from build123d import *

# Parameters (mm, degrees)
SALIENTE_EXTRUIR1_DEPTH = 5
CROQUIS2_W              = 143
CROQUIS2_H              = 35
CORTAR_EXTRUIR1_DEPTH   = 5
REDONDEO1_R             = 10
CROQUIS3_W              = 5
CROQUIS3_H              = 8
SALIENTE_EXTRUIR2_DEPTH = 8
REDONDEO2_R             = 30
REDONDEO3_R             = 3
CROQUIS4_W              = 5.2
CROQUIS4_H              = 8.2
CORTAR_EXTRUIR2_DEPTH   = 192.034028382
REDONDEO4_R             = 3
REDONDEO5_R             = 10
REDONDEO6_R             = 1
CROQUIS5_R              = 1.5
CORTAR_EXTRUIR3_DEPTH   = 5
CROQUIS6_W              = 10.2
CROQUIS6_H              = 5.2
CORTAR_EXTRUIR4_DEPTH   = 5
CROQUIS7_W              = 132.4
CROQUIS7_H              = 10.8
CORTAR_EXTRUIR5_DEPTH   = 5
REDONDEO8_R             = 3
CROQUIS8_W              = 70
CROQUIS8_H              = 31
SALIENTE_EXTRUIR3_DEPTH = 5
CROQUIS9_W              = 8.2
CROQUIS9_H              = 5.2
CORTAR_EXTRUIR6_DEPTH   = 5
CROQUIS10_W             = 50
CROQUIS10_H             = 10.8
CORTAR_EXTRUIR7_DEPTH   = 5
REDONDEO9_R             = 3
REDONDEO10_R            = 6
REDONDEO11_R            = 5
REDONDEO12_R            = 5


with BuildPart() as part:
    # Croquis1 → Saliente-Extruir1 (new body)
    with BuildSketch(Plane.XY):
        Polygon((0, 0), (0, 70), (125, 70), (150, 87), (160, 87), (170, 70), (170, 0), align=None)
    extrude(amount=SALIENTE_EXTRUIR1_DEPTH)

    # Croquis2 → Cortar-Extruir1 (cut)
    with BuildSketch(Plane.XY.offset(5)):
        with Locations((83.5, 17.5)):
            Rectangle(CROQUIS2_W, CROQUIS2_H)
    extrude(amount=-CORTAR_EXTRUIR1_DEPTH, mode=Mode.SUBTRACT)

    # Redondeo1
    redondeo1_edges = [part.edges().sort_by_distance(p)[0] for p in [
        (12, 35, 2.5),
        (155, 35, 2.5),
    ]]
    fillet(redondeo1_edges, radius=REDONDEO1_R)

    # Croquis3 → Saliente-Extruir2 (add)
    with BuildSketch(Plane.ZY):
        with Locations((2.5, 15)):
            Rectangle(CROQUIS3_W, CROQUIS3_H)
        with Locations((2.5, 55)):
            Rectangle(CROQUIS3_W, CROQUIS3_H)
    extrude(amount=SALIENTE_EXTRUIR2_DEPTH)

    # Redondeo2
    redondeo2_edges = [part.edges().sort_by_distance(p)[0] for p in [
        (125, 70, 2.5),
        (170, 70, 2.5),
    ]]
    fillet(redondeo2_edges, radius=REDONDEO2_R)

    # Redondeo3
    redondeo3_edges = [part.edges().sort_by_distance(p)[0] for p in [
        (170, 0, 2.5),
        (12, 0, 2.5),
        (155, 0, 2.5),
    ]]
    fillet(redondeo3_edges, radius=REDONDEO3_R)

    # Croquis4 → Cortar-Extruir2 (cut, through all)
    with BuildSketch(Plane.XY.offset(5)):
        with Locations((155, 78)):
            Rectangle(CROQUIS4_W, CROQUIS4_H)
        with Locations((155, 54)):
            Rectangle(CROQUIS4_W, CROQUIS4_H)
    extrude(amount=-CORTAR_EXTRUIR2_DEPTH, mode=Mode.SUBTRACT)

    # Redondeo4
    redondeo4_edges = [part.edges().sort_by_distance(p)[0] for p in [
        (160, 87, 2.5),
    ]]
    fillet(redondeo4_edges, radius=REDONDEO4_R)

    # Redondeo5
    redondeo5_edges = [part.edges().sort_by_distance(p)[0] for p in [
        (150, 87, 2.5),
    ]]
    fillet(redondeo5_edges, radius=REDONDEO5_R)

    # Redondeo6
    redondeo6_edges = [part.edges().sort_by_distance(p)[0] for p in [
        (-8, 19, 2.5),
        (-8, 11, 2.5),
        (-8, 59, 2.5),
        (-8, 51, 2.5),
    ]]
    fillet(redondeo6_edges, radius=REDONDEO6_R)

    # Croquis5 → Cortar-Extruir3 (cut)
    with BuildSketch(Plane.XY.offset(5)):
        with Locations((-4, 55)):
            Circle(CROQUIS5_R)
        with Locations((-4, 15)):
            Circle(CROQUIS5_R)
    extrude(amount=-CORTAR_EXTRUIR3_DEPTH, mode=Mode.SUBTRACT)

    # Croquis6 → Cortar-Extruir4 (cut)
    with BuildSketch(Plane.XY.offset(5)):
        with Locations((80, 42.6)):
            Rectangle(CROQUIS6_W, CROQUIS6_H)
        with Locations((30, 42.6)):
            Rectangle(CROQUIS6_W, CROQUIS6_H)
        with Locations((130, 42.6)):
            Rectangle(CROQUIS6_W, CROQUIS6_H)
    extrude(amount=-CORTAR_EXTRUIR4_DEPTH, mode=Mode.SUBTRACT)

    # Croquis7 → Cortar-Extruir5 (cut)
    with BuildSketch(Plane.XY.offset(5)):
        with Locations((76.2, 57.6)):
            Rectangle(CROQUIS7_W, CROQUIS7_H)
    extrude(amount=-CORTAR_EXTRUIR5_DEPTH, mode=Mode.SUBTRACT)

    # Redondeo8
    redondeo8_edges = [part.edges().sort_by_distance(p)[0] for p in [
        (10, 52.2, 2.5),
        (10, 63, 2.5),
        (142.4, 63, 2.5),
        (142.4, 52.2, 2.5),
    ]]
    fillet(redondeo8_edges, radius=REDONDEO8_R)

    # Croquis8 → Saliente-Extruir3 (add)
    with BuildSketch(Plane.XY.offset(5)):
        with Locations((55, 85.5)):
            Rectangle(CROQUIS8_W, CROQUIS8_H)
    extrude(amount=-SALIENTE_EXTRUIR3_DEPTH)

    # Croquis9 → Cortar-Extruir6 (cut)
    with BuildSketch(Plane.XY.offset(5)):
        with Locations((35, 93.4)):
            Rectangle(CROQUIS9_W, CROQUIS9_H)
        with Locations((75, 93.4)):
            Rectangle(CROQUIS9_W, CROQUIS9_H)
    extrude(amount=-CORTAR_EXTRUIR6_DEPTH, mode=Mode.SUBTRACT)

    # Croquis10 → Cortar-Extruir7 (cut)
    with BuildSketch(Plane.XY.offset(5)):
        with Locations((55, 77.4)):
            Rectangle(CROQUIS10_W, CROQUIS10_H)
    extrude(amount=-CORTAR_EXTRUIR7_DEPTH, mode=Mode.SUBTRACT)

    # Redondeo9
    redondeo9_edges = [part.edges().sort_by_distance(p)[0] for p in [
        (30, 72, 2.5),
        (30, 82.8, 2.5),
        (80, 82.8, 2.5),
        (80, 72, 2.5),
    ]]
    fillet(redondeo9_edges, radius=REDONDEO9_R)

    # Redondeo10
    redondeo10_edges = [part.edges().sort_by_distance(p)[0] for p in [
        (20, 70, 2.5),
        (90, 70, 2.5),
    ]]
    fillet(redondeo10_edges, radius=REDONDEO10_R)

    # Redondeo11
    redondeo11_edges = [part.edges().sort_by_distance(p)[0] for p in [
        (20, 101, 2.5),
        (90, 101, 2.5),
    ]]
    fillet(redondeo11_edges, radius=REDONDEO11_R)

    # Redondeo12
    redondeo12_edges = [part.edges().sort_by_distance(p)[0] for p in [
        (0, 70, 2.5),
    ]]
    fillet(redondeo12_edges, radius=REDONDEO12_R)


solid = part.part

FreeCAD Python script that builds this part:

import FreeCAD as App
import Part
import Sketcher
Q = App.Units.Quantity


def edges_at(feature, points):
    """Names of the edges that pass closest to the given points."""
    edges = feature.Shape.Edges
    near = lambda p: min(range(len(edges)), key=lambda i: edges[i].distToShape(Part.Vertex(*p))[0])
    return sorted({f"Edge{near(p) + 1}" for p in points})

doc = App.newDocument("Part")
body = doc.addObject("PartDesign::Body", "Body")

# Sketch on XY plane
sketch1 = doc.addObject("Sketcher::SketchObject", "Sketch")
body.addObject(sketch1)
sketch1.AttachmentSupport = (doc.XY_Plane, [""])
sketch1.MapMode = "FlatFace"
sketch1.addGeometry(Part.LineSegment(App.Vector(0, 70, 0), App.Vector(0, 0, 0)), False)
sketch1.addGeometry(Part.LineSegment(App.Vector(0, 0, 0), App.Vector(170, 0, 0)), False)
sketch1.addGeometry(Part.LineSegment(App.Vector(170, 0, 0), App.Vector(170, 70, 0)), False)
sketch1.addGeometry(Part.LineSegment(App.Vector(170, 70, 0), App.Vector(160, 87, 0)), False)
sketch1.addGeometry(Part.LineSegment(App.Vector(160, 87, 0), App.Vector(150, 87, 0)), False)
sketch1.addGeometry(Part.LineSegment(App.Vector(150, 87, 0), App.Vector(125, 70, 0)), False)
sketch1.addGeometry(Part.LineSegment(App.Vector(125, 70, 0), App.Vector(0, 70, 0)), False)
sketch1.addConstraint(Sketcher.Constraint("Coincident", 0, 2, 1, 1))
sketch1.addConstraint(Sketcher.Constraint("Coincident", 1, 2, 2, 1))
sketch1.addConstraint(Sketcher.Constraint("Coincident", 2, 2, 3, 1))
sketch1.addConstraint(Sketcher.Constraint("Coincident", 3, 2, 4, 1))
sketch1.addConstraint(Sketcher.Constraint("Coincident", 4, 2, 5, 1))
sketch1.addConstraint(Sketcher.Constraint("Coincident", 5, 2, 6, 1))
sketch1.addConstraint(Sketcher.Constraint("Coincident", 6, 2, 0, 1))
sketch1.addConstraint(Sketcher.Constraint("Vertical", 0))
sketch1.addConstraint(Sketcher.Constraint("Horizontal", 1))
sketch1.addConstraint(Sketcher.Constraint("Vertical", 2))
sketch1.addConstraint(Sketcher.Constraint("Horizontal", 4))
sketch1.addConstraint(Sketcher.Constraint("Horizontal", 6))
sketch1.addConstraint(Sketcher.Constraint("Coincident", 0, 2, -1, 1))
sketch1.addConstraint(Sketcher.Constraint("Horizontal", 2, 2, 5, 2))
sketch1.addConstraint(Sketcher.Constraint("DistanceX", 1, 1, 1, 2, Q("170 mm")))
sketch1.addConstraint(Sketcher.Constraint("DistanceX", 4, 2, 4, 1, Q("10 mm")))
sketch1.addConstraint(Sketcher.Constraint("DistanceX", 6, 2, 6, 1, Q("125 mm")))
sketch1.addConstraint(Sketcher.Constraint("DistanceY", 0, 2, 0, 1, Q("70 mm")))
sketch1.addConstraint(Sketcher.Constraint("DistanceX", -1, 1, 3, 2, Q("160 mm")))
sketch1.addConstraint(Sketcher.Constraint("DistanceY", -1, 1, 3, 2, Q("87 mm")))
pad1 = doc.addObject("PartDesign::Pad", "Pad")
body.addObject(pad1)
pad1.Profile = sketch1
pad1.Length = 5

# Sketch on XY plane
sketch2 = doc.addObject("Sketcher::SketchObject", "Sketch001")
body.addObject(sketch2)
sketch2.AttachmentSupport = (doc.XY_Plane, [""])
sketch2.MapMode = "FlatFace"
sketch2.AttachmentOffset = App.Placement(App.Vector(0, 0, 5), App.Rotation())
sketch2.addGeometry(Part.LineSegment(App.Vector(12, 35, 0), App.Vector(12, 0, 0)), False)
sketch2.addGeometry(Part.LineSegment(App.Vector(12, 0, 0), App.Vector(155, 0, 0)), False)
sketch2.addGeometry(Part.LineSegment(App.Vector(155, 0, 0), App.Vector(155, 35, 0)), False)
sketch2.addGeometry(Part.LineSegment(App.Vector(155, 35, 0), App.Vector(12, 35, 0)), False)
sketch2.addConstraint(Sketcher.Constraint("Coincident", 0, 2, 1, 1))
sketch2.addConstraint(Sketcher.Constraint("Coincident", 1, 2, 2, 1))
sketch2.addConstraint(Sketcher.Constraint("Coincident", 2, 2, 3, 1))
sketch2.addConstraint(Sketcher.Constraint("Coincident", 3, 2, 0, 1))
sketch2.addConstraint(Sketcher.Constraint("Vertical", 0))
sketch2.addConstraint(Sketcher.Constraint("Horizontal", 1))
sketch2.addConstraint(Sketcher.Constraint("Vertical", 2))
sketch2.addConstraint(Sketcher.Constraint("Horizontal", 3))
sketch2.addConstraint(Sketcher.Constraint("PointOnObject", 0, 2, -1))
sketch2.addConstraint(Sketcher.Constraint("DistanceX", 1, 1, 1, 2, Q("143 mm")))
sketch2.addConstraint(Sketcher.Constraint("DistanceY", 0, 2, 0, 1, Q("35 mm")))
sketch2.addConstraint(Sketcher.Constraint("DistanceX", -1, 1, 0, 2, Q("12 mm")))
pocket1 = doc.addObject("PartDesign::Pocket", "Pocket")
body.addObject(pocket1)
pocket1.Profile = sketch2
pocket1.Length = 5
doc.recompute()

fillet = doc.addObject("PartDesign::Fillet", "Fillet")
body.addObject(fillet)
fillet.Base = (pocket1, edges_at(pocket1, [(12, 35, 2.5), (155, 35, 2.5)]))
fillet.Radius = 10

# Sketch on YZ plane
sketch3 = doc.addObject("Sketcher::SketchObject", "Sketch002")
body.addObject(sketch3)
sketch3.AttachmentSupport = (doc.YZ_Plane, [""])
sketch3.MapMode = "FlatFace"
sketch3.addGeometry(Part.LineSegment(App.Vector(19, 0, 0), App.Vector(11, 0, 0)), False)
sketch3.addGeometry(Part.LineSegment(App.Vector(11, 0, 0), App.Vector(11, 5, 0)), False)
sketch3.addGeometry(Part.LineSegment(App.Vector(11, 5, 0), App.Vector(19, 5, 0)), False)
sketch3.addGeometry(Part.LineSegment(App.Vector(19, 5, 0), App.Vector(19, 0, 0)), False)
sketch3.addGeometry(Part.LineSegment(App.Vector(59, 0, 0), App.Vector(51, 0, 0)), False)
sketch3.addGeometry(Part.LineSegment(App.Vector(51, 0, 0), App.Vector(51, 5, 0)), False)
sketch3.addGeometry(Part.LineSegment(App.Vector(51, 5, 0), App.Vector(59, 5, 0)), False)
sketch3.addGeometry(Part.LineSegment(App.Vector(59, 5, 0), App.Vector(59, 0, 0)), False)
sketch3.addConstraint(Sketcher.Constraint("Coincident", 0, 2, 1, 1))
sketch3.addConstraint(Sketcher.Constraint("Coincident", 1, 2, 2, 1))
sketch3.addConstraint(Sketcher.Constraint("Coincident", 2, 2, 3, 1))
sketch3.addConstraint(Sketcher.Constraint("Coincident", 3, 2, 0, 1))
sketch3.addConstraint(Sketcher.Constraint("Coincident", 4, 2, 5, 1))
sketch3.addConstraint(Sketcher.Constraint("Coincident", 5, 2, 6, 1))
sketch3.addConstraint(Sketcher.Constraint("Coincident", 6, 2, 7, 1))
sketch3.addConstraint(Sketcher.Constraint("Coincident", 7, 2, 4, 1))
sketch3.addConstraint(Sketcher.Constraint("Horizontal", 0))
sketch3.addConstraint(Sketcher.Constraint("Vertical", 1))
sketch3.addConstraint(Sketcher.Constraint("Horizontal", 2))
sketch3.addConstraint(Sketcher.Constraint("Vertical", 3))
sketch3.addConstraint(Sketcher.Constraint("Horizontal", 4))
sketch3.addConstraint(Sketcher.Constraint("Vertical", 5))
sketch3.addConstraint(Sketcher.Constraint("Horizontal", 6))
sketch3.addConstraint(Sketcher.Constraint("Vertical", 7))
sketch3.addConstraint(Sketcher.Constraint("PointOnObject", 0, 2, -1))
sketch3.addConstraint(Sketcher.Constraint("PointOnObject", 4, 2, -1))
sketch3.addConstraint(Sketcher.Constraint("Horizontal", 2, 2, 5, 2))
sketch3.addConstraint(Sketcher.Constraint("Equal", 2, 4))
sketch3.addConstraint(Sketcher.Constraint("DistanceX", 0, 2, 0, 1, Q("8 mm")))
sketch3.addConstraint(Sketcher.Constraint("DistanceY", 1, 1, 1, 2, Q("5 mm")))
sketch3.addConstraint(Sketcher.Constraint("DistanceX", -1, 1, 0, 2, Q("11 mm")))
sketch3.addConstraint(Sketcher.Constraint("DistanceX", -1, 1, 4, 2, Q("51 mm")))
pad2 = doc.addObject("PartDesign::Pad", "Pad001")
body.addObject(pad2)
pad2.Profile = sketch3
pad2.Length = 8
pad2.Reversed = True
doc.recompute()

fillet2 = doc.addObject("PartDesign::Fillet", "Fillet001")
body.addObject(fillet2)
fillet2.Base = (pad2, edges_at(pad2, [(125, 70, 2.5), (170, 70, 2.5)]))
fillet2.Radius = 30
doc.recompute()

fillet3 = doc.addObject("PartDesign::Fillet", "Fillet002")
body.addObject(fillet3)
fillet3.Base = (fillet2, edges_at(fillet2, [(170, 0, 2.5), (12, 0, 2.5), (155, 0, 2.5)]))
fillet3.Radius = 3

# Sketch on XY plane
sketch4 = doc.addObject("Sketcher::SketchObject", "Sketch003")
body.addObject(sketch4)
sketch4.AttachmentSupport = (doc.XY_Plane, [""])
sketch4.MapMode = "FlatFace"
sketch4.AttachmentOffset = App.Placement(App.Vector(0, 0, 5), App.Rotation())
sketch4.addGeometry(Part.LineSegment(App.Vector(152, 82, 0), App.Vector(152, 74, 0)), False)
sketch4.addGeometry(Part.LineSegment(App.Vector(152, 74, 0), App.Vector(158, 74, 0)), False)
sketch4.addGeometry(Part.LineSegment(App.Vector(158, 74, 0), App.Vector(158, 82, 0)), False)
sketch4.addGeometry(Part.LineSegment(App.Vector(158, 82, 0), App.Vector(152, 82, 0)), False)
sketch4.addGeometry(Part.LineSegment(App.Vector(152, 58, 0), App.Vector(152, 50, 0)), False)
sketch4.addGeometry(Part.LineSegment(App.Vector(152, 50, 0), App.Vector(158, 50, 0)), False)
sketch4.addGeometry(Part.LineSegment(App.Vector(158, 50, 0), App.Vector(158, 58, 0)), False)
sketch4.addGeometry(Part.LineSegment(App.Vector(158, 58, 0), App.Vector(152, 58, 0)), False)
sketch4.addConstraint(Sketcher.Constraint("Coincident", 0, 2, 1, 1))
sketch4.addConstraint(Sketcher.Constraint("Coincident", 1, 2, 2, 1))
sketch4.addConstraint(Sketcher.Constraint("Coincident", 2, 2, 3, 1))
sketch4.addConstraint(Sketcher.Constraint("Coincident", 3, 2, 0, 1))
sketch4.addConstraint(Sketcher.Constraint("Coincident", 4, 2, 5, 1))
sketch4.addConstraint(Sketcher.Constraint("Coincident", 5, 2, 6, 1))
sketch4.addConstraint(Sketcher.Constraint("Coincident", 6, 2, 7, 1))
sketch4.addConstraint(Sketcher.Constraint("Coincident", 7, 2, 4, 1))
sketch4.addConstraint(Sketcher.Constraint("Vertical", 0))
sketch4.addConstraint(Sketcher.Constraint("Horizontal", 1))
sketch4.addConstraint(Sketcher.Constraint("Vertical", 2))
sketch4.addConstraint(Sketcher.Constraint("Horizontal", 3))
sketch4.addConstraint(Sketcher.Constraint("Vertical", 4))
sketch4.addConstraint(Sketcher.Constraint("Horizontal", 5))
sketch4.addConstraint(Sketcher.Constraint("Vertical", 6))
sketch4.addConstraint(Sketcher.Constraint("Horizontal", 7))
sketch4.addConstraint(Sketcher.Constraint("Vertical", 3, 2, 4, 2))
sketch4.addConstraint(Sketcher.Constraint("Vertical", 2, 2, 5, 2))
sketch4.addConstraint(Sketcher.Constraint("Equal", 2, 4))
sketch4.addConstraint(Sketcher.Constraint("DistanceX", 1, 1, 1, 2, Q("5.2 mm")))
sketch4.addConstraint(Sketcher.Constraint("DistanceY", 0, 2, 0, 1, Q("8.2 mm")))
sketch4.addConstraint(Sketcher.Constraint("DistanceY", 4, 2, 0, 2, Q("24 mm")))
sketch4.addConstraint(Sketcher.Constraint("DistanceX", -1, 1, 0, 2, Q("152.4 mm")))
sketch4.addConstraint(Sketcher.Constraint("DistanceY", -1, 1, 0, 2, Q("73.9 mm")))
pocket2 = doc.addObject("PartDesign::Pocket", "Pocket001")
body.addObject(pocket2)
pocket2.Profile = sketch4
pocket2.Type = "ThroughAll"
doc.recompute()

fillet4 = doc.addObject("PartDesign::Fillet", "Fillet003")
body.addObject(fillet4)
fillet4.Base = (pocket2, edges_at(pocket2, [(160, 87, 2.5)]))
fillet4.Radius = 3
doc.recompute()

fillet5 = doc.addObject("PartDesign::Fillet", "Fillet004")
body.addObject(fillet5)
fillet5.Base = (fillet4, edges_at(fillet4, [(150, 87, 2.5)]))
fillet5.Radius = 10
doc.recompute()

fillet6 = doc.addObject("PartDesign::Fillet", "Fillet005")
body.addObject(fillet6)
fillet6.Base = (fillet5, edges_at(fillet5, [
    (-8, 19, 2.5),
    (-8, 11, 2.5),
    (-8, 59, 2.5),
    (-8, 51, 2.5),
]))
fillet6.Radius = 1

# Sketch on XY plane
sketch5 = doc.addObject("Sketcher::SketchObject", "Sketch004")
body.addObject(sketch5)
sketch5.AttachmentSupport = (doc.XY_Plane, [""])
sketch5.MapMode = "FlatFace"
sketch5.AttachmentOffset = App.Placement(App.Vector(0, 0, 5), App.Rotation())
sketch5.addGeometry(Part.Circle(App.Vector(-4, 55, 0), App.Vector(0, 0, 1), 1.5), False)
sketch5.addGeometry(Part.Circle(App.Vector(-4, 15, 0), App.Vector(0, 0, 1), 1.5), False)
sketch5.addConstraint(Sketcher.Constraint("Equal", 0, 1))
sketch5.addConstraint(Sketcher.Constraint("Vertical", 0, 3, 1, 3))
sketch5.addConstraint(Sketcher.Constraint("Diameter", 0, Q("3 mm")))
sketch5.addConstraint(Sketcher.Constraint("DistanceX", 0, 3, -1, 1, Q("4 mm")))
sketch5.addConstraint(Sketcher.Constraint("DistanceY", -1, 1, 0, 3, Q("55 mm")))
sketch5.addConstraint(Sketcher.Constraint("DistanceY", -1, 1, 1, 3, Q("15 mm")))
pocket3 = doc.addObject("PartDesign::Pocket", "Pocket002")
body.addObject(pocket3)
pocket3.Profile = sketch5
pocket3.Length = 5

# Sketch on XY plane
sketch6 = doc.addObject("Sketcher::SketchObject", "Sketch005")
body.addObject(sketch6)
sketch6.AttachmentSupport = (doc.XY_Plane, [""])
sketch6.MapMode = "FlatFace"
sketch6.AttachmentOffset = App.Placement(App.Vector(0, 0, 5), App.Rotation())
sketch6.addGeometry(Part.LineSegment(App.Vector(75, 45, 0), App.Vector(75, 40, 0)), False)
sketch6.addGeometry(Part.LineSegment(App.Vector(75, 40, 0), App.Vector(85, 40, 0)), False)
sketch6.addGeometry(Part.LineSegment(App.Vector(85, 40, 0), App.Vector(85, 45, 0)), False)
sketch6.addGeometry(Part.LineSegment(App.Vector(85, 45, 0), App.Vector(75, 45, 0)), False)
sketch6.addGeometry(Part.LineSegment(App.Vector(25, 45, 0), App.Vector(25, 40, 0)), False)
sketch6.addGeometry(Part.LineSegment(App.Vector(25, 40, 0), App.Vector(35, 40, 0)), False)
sketch6.addGeometry(Part.LineSegment(App.Vector(35, 40, 0), App.Vector(35, 45, 0)), False)
sketch6.addGeometry(Part.LineSegment(App.Vector(35, 45, 0), App.Vector(25, 45, 0)), False)
sketch6.addGeometry(Part.LineSegment(App.Vector(125, 45, 0), App.Vector(125, 40, 0)), False)
sketch6.addGeometry(Part.LineSegment(App.Vector(125, 40, 0), App.Vector(135, 40, 0)), False)
sketch6.addGeometry(Part.LineSegment(App.Vector(135, 40, 0), App.Vector(135, 45, 0)), False)
sketch6.addGeometry(Part.LineSegment(App.Vector(135, 45, 0), App.Vector(125, 45, 0)), False)
sketch6.addConstraint(Sketcher.Constraint("Coincident", 0, 2, 1, 1))
sketch6.addConstraint(Sketcher.Constraint("Coincident", 1, 2, 2, 1))
sketch6.addConstraint(Sketcher.Constraint("Coincident", 2, 2, 3, 1))
sketch6.addConstraint(Sketcher.Constraint("Coincident", 3, 2, 0, 1))
sketch6.addConstraint(Sketcher.Constraint("Coincident", 4, 2, 5, 1))
sketch6.addConstraint(Sketcher.Constraint("Coincident", 5, 2, 6, 1))
sketch6.addConstraint(Sketcher.Constraint("Coincident", 6, 2, 7, 1))
sketch6.addConstraint(Sketcher.Constraint("Coincident", 7, 2, 4, 1))
sketch6.addConstraint(Sketcher.Constraint("Coincident", 8, 2, 9, 1))
sketch6.addConstraint(Sketcher.Constraint("Coincident", 9, 2, 10, 1))
sketch6.addConstraint(Sketcher.Constraint("Coincident", 10, 2, 11, 1))
sketch6.addConstraint(Sketcher.Constraint("Coincident", 11, 2, 8, 1))
sketch6.addConstraint(Sketcher.Constraint("Vertical", 0))
sketch6.addConstraint(Sketcher.Constraint("Horizontal", 1))
sketch6.addConstraint(Sketcher.Constraint("Vertical", 2))
sketch6.addConstraint(Sketcher.Constraint("Horizontal", 3))
sketch6.addConstraint(Sketcher.Constraint("Vertical", 4))
sketch6.addConstraint(Sketcher.Constraint("Horizontal", 5))
sketch6.addConstraint(Sketcher.Constraint("Vertical", 6))
sketch6.addConstraint(Sketcher.Constraint("Horizontal", 7))
sketch6.addConstraint(Sketcher.Constraint("Vertical", 8))
sketch6.addConstraint(Sketcher.Constraint("Horizontal", 9))
sketch6.addConstraint(Sketcher.Constraint("Vertical", 10))
sketch6.addConstraint(Sketcher.Constraint("Horizontal", 11))
sketch6.addConstraint(Sketcher.Constraint("Horizontal", 1, 2, 4, 2))
sketch6.addConstraint(Sketcher.Constraint("Horizontal", 3, 2, 6, 2))
sketch6.addConstraint(Sketcher.Constraint("Horizontal", 5, 2, 8, 2))
sketch6.addConstraint(Sketcher.Constraint("Horizontal", 7, 2, 10, 2))
sketch6.addConstraint(Sketcher.Constraint("Equal", 3, 5))
sketch6.addConstraint(Sketcher.Constraint("Equal", 7, 9))
sketch6.addConstraint(Sketcher.Constraint("DistanceX", 1, 1, 1, 2, Q("10.2 mm")))
sketch6.addConstraint(Sketcher.Constraint("DistanceY", 0, 2, 0, 1, Q("5.2 mm")))
sketch6.addConstraint(Sketcher.Constraint("DistanceY", -1, 1, 0, 2, Q("40 mm")))
sketch6.addConstraint(Sketcher.Constraint("DistanceX", 4, 2, 0, 2, Q("50 mm")))
sketch6.addConstraint(Sketcher.Constraint("DistanceX", 0, 2, 8, 2, Q("50 mm")))
sketch6.addConstraint(Sketcher.Constraint("DistanceX", -1, 1, 0, 2, Q("74.9 mm")))
pocket4 = doc.addObject("PartDesign::Pocket", "Pocket003")
body.addObject(pocket4)
pocket4.Profile = sketch6
pocket4.Length = 5

# Sketch on XY plane
sketch7 = doc.addObject("Sketcher::SketchObject", "Sketch006")
body.addObject(sketch7)
sketch7.AttachmentSupport = (doc.XY_Plane, [""])
sketch7.MapMode = "FlatFace"
sketch7.AttachmentOffset = App.Placement(App.Vector(0, 0, 5), App.Rotation())
sketch7.addGeometry(Part.LineSegment(App.Vector(10, 63, 0), App.Vector(10, 52, 0)), False)
sketch7.addGeometry(Part.LineSegment(App.Vector(10, 52, 0), App.Vector(142, 52, 0)), False)
sketch7.addGeometry(Part.LineSegment(App.Vector(142, 52, 0), App.Vector(142, 63, 0)), False)
sketch7.addGeometry(Part.LineSegment(App.Vector(142, 63, 0), App.Vector(10, 63, 0)), False)
sketch7.addConstraint(Sketcher.Constraint("Coincident", 0, 2, 1, 1))
sketch7.addConstraint(Sketcher.Constraint("Coincident", 1, 2, 2, 1))
sketch7.addConstraint(Sketcher.Constraint("Coincident", 2, 2, 3, 1))
sketch7.addConstraint(Sketcher.Constraint("Coincident", 3, 2, 0, 1))
sketch7.addConstraint(Sketcher.Constraint("Vertical", 0))
sketch7.addConstraint(Sketcher.Constraint("Horizontal", 1))
sketch7.addConstraint(Sketcher.Constraint("Vertical", 2))
sketch7.addConstraint(Sketcher.Constraint("Horizontal", 3))
sketch7.addConstraint(Sketcher.Constraint("DistanceX", 1, 1, 1, 2, Q("132.4 mm")))
sketch7.addConstraint(Sketcher.Constraint("DistanceY", 0, 2, 0, 1, Q("10.8 mm")))
sketch7.addConstraint(Sketcher.Constraint("DistanceX", -1, 1, 0, 2, Q("10 mm")))
sketch7.addConstraint(Sketcher.Constraint("DistanceY", -1, 1, 2, 2, Q("63 mm")))
pocket5 = doc.addObject("PartDesign::Pocket", "Pocket004")
body.addObject(pocket5)
pocket5.Profile = sketch7
pocket5.Length = 5
doc.recompute()

fillet7 = doc.addObject("PartDesign::Fillet", "Fillet006")
body.addObject(fillet7)
fillet7.Base = (pocket5, edges_at(pocket5, [
    (10, 52.2, 2.5),
    (10, 63, 2.5),
    (142.4, 63, 2.5),
    (142.4, 52.2, 2.5),
]))
fillet7.Radius = 3

# Sketch on XY plane
sketch8 = doc.addObject("Sketcher::SketchObject", "Sketch007")
body.addObject(sketch8)
sketch8.AttachmentSupport = (doc.XY_Plane, [""])
sketch8.MapMode = "FlatFace"
sketch8.AttachmentOffset = App.Placement(App.Vector(0, 0, 5), App.Rotation())
sketch8.addGeometry(Part.LineSegment(App.Vector(20, 101, 0), App.Vector(20, 70, 0)), False)
sketch8.addGeometry(Part.LineSegment(App.Vector(20, 70, 0), App.Vector(90, 70, 0)), False)
sketch8.addGeometry(Part.LineSegment(App.Vector(90, 70, 0), App.Vector(90, 101, 0)), False)
sketch8.addGeometry(Part.LineSegment(App.Vector(90, 101, 0), App.Vector(20, 101, 0)), False)
sketch8.addConstraint(Sketcher.Constraint("Coincident", 0, 2, 1, 1))
sketch8.addConstraint(Sketcher.Constraint("Coincident", 1, 2, 2, 1))
sketch8.addConstraint(Sketcher.Constraint("Coincident", 2, 2, 3, 1))
sketch8.addConstraint(Sketcher.Constraint("Coincident", 3, 2, 0, 1))
sketch8.addConstraint(Sketcher.Constraint("Vertical", 0))
sketch8.addConstraint(Sketcher.Constraint("Horizontal", 1))
sketch8.addConstraint(Sketcher.Constraint("Vertical", 2))
sketch8.addConstraint(Sketcher.Constraint("Horizontal", 3))
sketch8.addConstraint(Sketcher.Constraint("DistanceX", 1, 1, 1, 2, Q("70 mm")))
sketch8.addConstraint(Sketcher.Constraint("DistanceY", 0, 2, 0, 1, Q("31 mm")))
sketch8.addConstraint(Sketcher.Constraint("DistanceX", -1, 1, 0, 2, Q("20 mm")))
sketch8.addConstraint(Sketcher.Constraint("DistanceY", -1, 1, 0, 2, Q("70 mm")))
pad3 = doc.addObject("PartDesign::Pad", "Pad002")
body.addObject(pad3)
pad3.Profile = sketch8
pad3.Length = 5
pad3.Reversed = True

# Sketch on XY plane
sketch9 = doc.addObject("Sketcher::SketchObject", "Sketch008")
body.addObject(sketch9)
sketch9.AttachmentSupport = (doc.XY_Plane, [""])
sketch9.MapMode = "FlatFace"
sketch9.AttachmentOffset = App.Placement(App.Vector(0, 0, 5), App.Rotation())
sketch9.addGeometry(Part.LineSegment(App.Vector(31, 96, 0), App.Vector(31, 91, 0)), False)
sketch9.addGeometry(Part.LineSegment(App.Vector(31, 91, 0), App.Vector(39, 91, 0)), False)
sketch9.addGeometry(Part.LineSegment(App.Vector(39, 91, 0), App.Vector(39, 96, 0)), False)
sketch9.addGeometry(Part.LineSegment(App.Vector(39, 96, 0), App.Vector(31, 96, 0)), False)
sketch9.addGeometry(Part.LineSegment(App.Vector(71, 96, 0), App.Vector(71, 91, 0)), False)
sketch9.addGeometry(Part.LineSegment(App.Vector(71, 91, 0), App.Vector(79, 91, 0)), False)
sketch9.addGeometry(Part.LineSegment(App.Vector(79, 91, 0), App.Vector(79, 96, 0)), False)
sketch9.addGeometry(Part.LineSegment(App.Vector(79, 96, 0), App.Vector(71, 96, 0)), False)
sketch9.addConstraint(Sketcher.Constraint("Coincident", 0, 2, 1, 1))
sketch9.addConstraint(Sketcher.Constraint("Coincident", 1, 2, 2, 1))
sketch9.addConstraint(Sketcher.Constraint("Coincident", 2, 2, 3, 1))
sketch9.addConstraint(Sketcher.Constraint("Coincident", 3, 2, 0, 1))
sketch9.addConstraint(Sketcher.Constraint("Coincident", 4, 2, 5, 1))
sketch9.addConstraint(Sketcher.Constraint("Coincident", 5, 2, 6, 1))
sketch9.addConstraint(Sketcher.Constraint("Coincident", 6, 2, 7, 1))
sketch9.addConstraint(Sketcher.Constraint("Coincident", 7, 2, 4, 1))
sketch9.addConstraint(Sketcher.Constraint("Vertical", 0))
sketch9.addConstraint(Sketcher.Constraint("Horizontal", 1))
sketch9.addConstraint(Sketcher.Constraint("Vertical", 2))
sketch9.addConstraint(Sketcher.Constraint("Horizontal", 3))
sketch9.addConstraint(Sketcher.Constraint("Vertical", 4))
sketch9.addConstraint(Sketcher.Constraint("Horizontal", 5))
sketch9.addConstraint(Sketcher.Constraint("Vertical", 6))
sketch9.addConstraint(Sketcher.Constraint("Horizontal", 7))
sketch9.addConstraint(Sketcher.Constraint("Horizontal", 1, 2, 4, 2))
sketch9.addConstraint(Sketcher.Constraint("Horizontal", 3, 2, 6, 2))
sketch9.addConstraint(Sketcher.Constraint("Equal", 3, 5))
sketch9.addConstraint(Sketcher.Constraint("DistanceX", 1, 1, 1, 2, Q("8.2 mm")))
sketch9.addConstraint(Sketcher.Constraint("DistanceY", 0, 2, 0, 1, Q("5.2 mm")))
sketch9.addConstraint(Sketcher.Constraint("DistanceY", -1, 1, 2, 2, Q("96 mm")))
sketch9.addConstraint(Sketcher.Constraint("DistanceX", 0, 2, 4, 2, Q("40 mm")))
sketch9.addConstraint(Sketcher.Constraint("DistanceX", -1, 1, 0, 2, Q("30.9 mm")))
pocket6 = doc.addObject("PartDesign::Pocket", "Pocket005")
body.addObject(pocket6)
pocket6.Profile = sketch9
pocket6.Length = 5

# Sketch on XY plane
sketch10 = doc.addObject("Sketcher::SketchObject", "Sketch009")
body.addObject(sketch10)
sketch10.AttachmentSupport = (doc.XY_Plane, [""])
sketch10.MapMode = "FlatFace"
sketch10.AttachmentOffset = App.Placement(App.Vector(0, 0, 5), App.Rotation())
sketch10.addGeometry(Part.LineSegment(App.Vector(30, 83, 0), App.Vector(30, 72, 0)), False)
sketch10.addGeometry(Part.LineSegment(App.Vector(30, 72, 0), App.Vector(80, 72, 0)), False)
sketch10.addGeometry(Part.LineSegment(App.Vector(80, 72, 0), App.Vector(80, 83, 0)), False)
sketch10.addGeometry(Part.LineSegment(App.Vector(80, 83, 0), App.Vector(30, 83, 0)), False)
sketch10.addConstraint(Sketcher.Constraint("Coincident", 0, 2, 1, 1))
sketch10.addConstraint(Sketcher.Constraint("Coincident", 1, 2, 2, 1))
sketch10.addConstraint(Sketcher.Constraint("Coincident", 2, 2, 3, 1))
sketch10.addConstraint(Sketcher.Constraint("Coincident", 3, 2, 0, 1))
sketch10.addConstraint(Sketcher.Constraint("Vertical", 0))
sketch10.addConstraint(Sketcher.Constraint("Horizontal", 1))
sketch10.addConstraint(Sketcher.Constraint("Vertical", 2))
sketch10.addConstraint(Sketcher.Constraint("Horizontal", 3))
sketch10.addConstraint(Sketcher.Constraint("DistanceX", 1, 1, 1, 2, Q("50 mm")))
sketch10.addConstraint(Sketcher.Constraint("DistanceY", 0, 2, 0, 1, Q("10.8 mm")))
sketch10.addConstraint(Sketcher.Constraint("DistanceX", -1, 1, 0, 2, Q("30 mm")))
sketch10.addConstraint(Sketcher.Constraint("DistanceY", -1, 1, 0, 2, Q("72 mm")))
pocket7 = doc.addObject("PartDesign::Pocket", "Pocket006")
body.addObject(pocket7)
pocket7.Profile = sketch10
pocket7.Length = 5
doc.recompute()

fillet8 = doc.addObject("PartDesign::Fillet", "Fillet007")
body.addObject(fillet8)
fillet8.Base = (pocket7, edges_at(pocket7, [
    (30, 72, 2.5),
    (30, 82.8, 2.5),
    (80, 82.8, 2.5),
    (80, 72, 2.5),
]))
fillet8.Radius = 3
doc.recompute()

fillet9 = doc.addObject("PartDesign::Fillet", "Fillet008")
body.addObject(fillet9)
fillet9.Base = (fillet8, edges_at(fillet8, [(20, 70, 2.5), (90, 70, 2.5)]))
fillet9.Radius = 6
doc.recompute()

fillet10 = doc.addObject("PartDesign::Fillet", "Fillet009")
body.addObject(fillet10)
fillet10.Base = (fillet9, edges_at(fillet9, [(20, 101, 2.5), (90, 101, 2.5)]))
fillet10.Radius = 5
doc.recompute()

fillet11 = doc.addObject("PartDesign::Fillet", "Fillet010")
body.addObject(fillet11)
fillet11.Base = (fillet10, edges_at(fillet10, [(0, 70, 2.5)]))
fillet11.Radius = 5

doc.recompute()
